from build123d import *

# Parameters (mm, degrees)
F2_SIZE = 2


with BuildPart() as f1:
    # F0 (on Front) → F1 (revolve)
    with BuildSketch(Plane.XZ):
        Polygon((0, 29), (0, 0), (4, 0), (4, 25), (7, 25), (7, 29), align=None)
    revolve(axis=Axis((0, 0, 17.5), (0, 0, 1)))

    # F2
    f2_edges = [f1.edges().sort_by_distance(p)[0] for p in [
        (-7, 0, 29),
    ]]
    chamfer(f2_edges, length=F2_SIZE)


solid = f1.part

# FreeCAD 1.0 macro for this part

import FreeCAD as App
import Part
import Sketcher


def edges_at(feature, points):
    """Names of the edges that pass closest to the given points."""
    edges = feature.Shape.Edges
    near = lambda p: min(range(len(edges)), key=lambda i: edges[i].distToShape(Part.Vertex(*p))[0])
    return sorted({f"Edge{near(p) + 1}" for p in points})


def add_polygon(sketch, points):
    """Adds a closed chain of lines whose ends are joined by coincident constraints."""
    first, n = sketch.GeometryCount, len(points)
    for a, b in zip(points, points[1:] + points[:1]):
        sketch.addGeometry(Part.LineSegment(App.Vector(*a, 0), App.Vector(*b, 0)), False)
    for i in range(n):
        sketch.addConstraint(Sketcher.Constraint("Coincident", first + i, 2, first + (i + 1) % n, 1))

doc = App.newDocument("Part")
body = doc.addObject("PartDesign::Body", "Body")

# Sketch on XZ plane
sketch1 = body.newObject("Sketcher::SketchObject", "Sketch")
sketch1.AttachmentSupport = (doc.getObject("XZ_Plane"), [""])
sketch1.MapMode = "FlatFace"
add_polygon(sketch1, [(0, 29), (0, 0), (4, 0), (4, 25), (7, 25), (7, 29)])  # lines 0-5
sketch1.addConstraint([
    Sketcher.Constraint("Vertical", 0),
    Sketcher.Constraint("Horizontal", 1),
    Sketcher.Constraint("Vertical", 2),
    Sketcher.Constraint("Horizontal", 3),
    Sketcher.Constraint("Vertical", 4),
    Sketcher.Constraint("Horizontal", 5),
    Sketcher.Constraint("Coincident", 0, 2, -1, 1),
    Sketcher.Constraint("Equal", 1, 4),
    Sketcher.Constraint("DistanceX", 1, 1, 1, 2, 4.0),
    Sketcher.Constraint("DistanceX", 3, 1, 3, 2, 3.0),
    Sketcher.Constraint("DistanceY", 0, 2, 0, 1, 29.0),
])
revolution = body.newObject("PartDesign::Revolution", "Revolution")
revolution.Profile = sketch1
revolution.ReferenceAxis = (sketch1, ["V_Axis"])
revolution.Angle = 360
doc.recompute()

chamfer = body.newObject("PartDesign::Chamfer", "Chamfer")
chamfer.Base = (revolution, edges_at(revolution, [(-7, 0, 29)]))
chamfer.Size = 2

doc.recompute()
